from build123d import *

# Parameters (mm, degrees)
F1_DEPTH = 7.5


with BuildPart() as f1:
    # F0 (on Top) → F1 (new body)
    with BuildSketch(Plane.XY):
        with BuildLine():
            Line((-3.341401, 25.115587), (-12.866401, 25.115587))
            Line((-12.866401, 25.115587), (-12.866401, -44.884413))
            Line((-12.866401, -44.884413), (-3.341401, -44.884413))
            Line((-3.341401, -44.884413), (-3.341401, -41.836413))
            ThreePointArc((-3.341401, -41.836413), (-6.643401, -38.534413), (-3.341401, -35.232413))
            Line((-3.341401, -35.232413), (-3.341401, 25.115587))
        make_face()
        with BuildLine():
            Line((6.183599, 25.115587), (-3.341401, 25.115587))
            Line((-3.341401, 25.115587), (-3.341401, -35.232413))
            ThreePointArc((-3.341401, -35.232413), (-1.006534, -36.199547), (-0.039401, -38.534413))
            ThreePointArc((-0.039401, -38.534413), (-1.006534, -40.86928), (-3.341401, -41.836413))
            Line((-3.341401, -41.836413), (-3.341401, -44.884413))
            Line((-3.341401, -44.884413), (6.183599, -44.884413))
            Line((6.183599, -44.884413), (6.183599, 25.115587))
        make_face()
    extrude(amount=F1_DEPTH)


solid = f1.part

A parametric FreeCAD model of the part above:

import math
import FreeCAD as App
import Part
import Sketcher
Q = App.Units.Quantity

doc = App.newDocument("Part")
body = doc.addObject("PartDesign::Body", "Body")

# Sketch on XY plane
sketch1 = body.newObject("Sketcher::SketchObject", "Sketch")
sketch1.AttachmentSupport = (doc.getObject("XY_Plane"), [""])
sketch1.MapMode = "FlatFace"
sketch1.addGeometry(Part.LineSegment(App.Vector(-12.9, 25.1, 0), App.Vector(-12.9, -44.9, 0)), False)
sketch1.addGeometry(Part.LineSegment(App.Vector(-12.9, -44.9, 0), App.Vector(6.2, -44.9, 0)), False)
sketch1.addGeometry(Part.LineSegment(App.Vector(6.2, -44.9, 0), App.Vector(6.2, 25.1, 0)), False)
sketch1.addGeometry(Part.LineSegment(App.Vector(6.2, 25.1, 0), App.Vector(-12.9, 25.1, 0)), False)
sketch1.addGeometry(Part.ArcOfCircle(Part.Circle(App.Vector(-3.3, -38.5, 0), App.Vector(0, 0, 1), 3.3), math.radians(90), math.radians(270)), False)
sketch1.addGeometry(Part.ArcOfCircle(Part.Circle(App.Vector(-3.3, -38.5, 0), App.Vector(0, 0, 1), 3.3), math.radians(0), math.radians(90)), False)
sketch1.addGeometry(Part.ArcOfCircle(Part.Circle(App.Vector(-3.3, -38.5, 0), App.Vector(0, 0, 1), 3.3), math.radians(-90), math.radians(0)), False)
sketch1.addConstraint(Sketcher.Constraint("Coincident", 0, 2, 1, 1))
sketch1.addConstraint(Sketcher.Constraint("Coincident", 1, 2, 2, 1))
sketch1.addConstraint(Sketcher.Constraint("Coincident", 2, 2, 3, 1))
sketch1.addConstraint(Sketcher.Constraint("Coincident", 3, 2, 0, 1))
sketch1.addConstraint(Sketcher.Constraint("Tangent", 4, 1, 5, 2))
sketch1.addConstraint(Sketcher.Constraint("Tangent", 5, 1, 6, 2))
sketch1.addConstraint(Sketcher.Constraint("Tangent", 6, 1, 4, 2))
sketch1.addConstraint(Sketcher.Constraint("Vertical", 0))
sketch1.addConstraint(Sketcher.Constraint("Horizontal", 1))
sketch1.addConstraint(Sketcher.Constraint("Vertical", 2))
sketch1.addConstraint(Sketcher.Constraint("Horizontal", 3))
sketch1.addConstraint(Sketcher.Constraint("Horizontal", 6, 3, 5, 1))
sketch1.addConstraint(Sketcher.Constraint("Vertical", 6, 3, 4, 1))
sketch1.addConstraint(Sketcher.Constraint("Vertical", 4, 1, 6, 1))
sketch1.addConstraint(Sketcher.Constraint("Radius", 4, Q("0.13 in")))
sketch1.addConstraint(Sketcher.Constraint("DistanceX", 1, 1, 1, 2, Q("0.75 in")))
sketch1.addConstraint(Sketcher.Constraint("DistanceY", 0, 2, 5, 3, Q("0.25 in")))
sketch1.addConstraint(Sketcher.Constraint("DistanceX", 0, 2, 5, 3, Q("0.375 in")))
sketch1.addConstraint(Sketcher.Constraint("DistanceY", 0, 2, 0, 1, Q("70 mm")))
sketch1.addConstraint(Sketcher.Constraint("DistanceX", 4, 3, -1, 1, Q("3.341401 mm")))
sketch1.addConstraint(Sketcher.Constraint("DistanceY", 4, 3, -1, 1, Q("38.534413 mm")))
pad1 = body.newObject("PartDesign::Pad", "Pad")
pad1.Profile = sketch1
pad1.Length = 7.5

doc.recompute()
